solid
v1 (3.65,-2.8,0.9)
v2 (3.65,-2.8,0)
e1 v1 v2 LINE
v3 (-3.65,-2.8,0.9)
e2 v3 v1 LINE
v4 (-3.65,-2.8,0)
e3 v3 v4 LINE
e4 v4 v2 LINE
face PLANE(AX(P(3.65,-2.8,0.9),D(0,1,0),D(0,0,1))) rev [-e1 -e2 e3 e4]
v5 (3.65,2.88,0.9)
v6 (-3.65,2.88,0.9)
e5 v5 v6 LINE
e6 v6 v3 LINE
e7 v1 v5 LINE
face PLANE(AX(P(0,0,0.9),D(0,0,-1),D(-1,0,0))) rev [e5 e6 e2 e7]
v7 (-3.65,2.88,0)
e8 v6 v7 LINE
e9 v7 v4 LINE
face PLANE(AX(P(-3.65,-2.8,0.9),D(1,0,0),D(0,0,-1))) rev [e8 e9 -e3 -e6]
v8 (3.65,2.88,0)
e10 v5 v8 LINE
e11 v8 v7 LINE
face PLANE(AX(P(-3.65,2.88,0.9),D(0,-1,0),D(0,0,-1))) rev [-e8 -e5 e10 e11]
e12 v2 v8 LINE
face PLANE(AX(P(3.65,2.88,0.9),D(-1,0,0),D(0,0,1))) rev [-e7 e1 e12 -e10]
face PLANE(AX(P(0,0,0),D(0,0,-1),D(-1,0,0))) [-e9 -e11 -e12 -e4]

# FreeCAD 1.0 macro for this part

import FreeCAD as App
import Part
import Sketcher
from FreeCAD import Vector

doc = App.newDocument("Part")
body = doc.addObject("PartDesign::Body", "Body")

# Sketch on XY plane
sketch1 = body.newObject("Sketcher::SketchObject", "Sketch")
sketch1.AttachmentSupport = (doc.getObject("XY_Plane"), [""])
sketch1.MapMode = "FlatFace"
sketch1.addGeometry([
    Part.LineSegment(Vector(-3.65, 2.88, 0), Vector(-3.65, -2.8, 0)),
    Part.LineSegment(Vector(-3.65, -2.8, 0), Vector(3.65, -2.8, 0)),
    Part.LineSegment(Vector(3.65, -2.8, 0), Vector(3.65, 2.88, 0)),
    Part.LineSegment(Vector(3.65, 2.88, 0), Vector(-3.65, 2.88, 0)),
], False)
sketch1.addConstraint([
    Sketcher.Constraint("Coincident", 0, 2, 1, 1),
    Sketcher.Constraint("Coincident", 1, 2, 2, 1),
    Sketcher.Constraint("Coincident", 2, 2, 3, 1),
    Sketcher.Constraint("Coincident", 3, 2, 0, 1),
    Sketcher.Constraint("Vertical", 0),
    Sketcher.Constraint("Horizontal", 1),
    Sketcher.Constraint("Vertical", 2),
    Sketcher.Constraint("Horizontal", 3),
    Sketcher.Constraint("DistanceX", 1, 1, 1, 2, 7.3),
    Sketcher.Constraint("DistanceY", 0, 2, 0, 1, 5.68),
    Sketcher.Constraint("DistanceY", 0, 2, -1, 1, 2.8),
    Sketcher.Constraint("DistanceX", 0, 2, -1, 1, 3.65),
])
pad1 = body.newObject("PartDesign::Pad", "Pad")
pad1.Profile = sketch1
pad1.Length = 0.9

doc.recompute()
